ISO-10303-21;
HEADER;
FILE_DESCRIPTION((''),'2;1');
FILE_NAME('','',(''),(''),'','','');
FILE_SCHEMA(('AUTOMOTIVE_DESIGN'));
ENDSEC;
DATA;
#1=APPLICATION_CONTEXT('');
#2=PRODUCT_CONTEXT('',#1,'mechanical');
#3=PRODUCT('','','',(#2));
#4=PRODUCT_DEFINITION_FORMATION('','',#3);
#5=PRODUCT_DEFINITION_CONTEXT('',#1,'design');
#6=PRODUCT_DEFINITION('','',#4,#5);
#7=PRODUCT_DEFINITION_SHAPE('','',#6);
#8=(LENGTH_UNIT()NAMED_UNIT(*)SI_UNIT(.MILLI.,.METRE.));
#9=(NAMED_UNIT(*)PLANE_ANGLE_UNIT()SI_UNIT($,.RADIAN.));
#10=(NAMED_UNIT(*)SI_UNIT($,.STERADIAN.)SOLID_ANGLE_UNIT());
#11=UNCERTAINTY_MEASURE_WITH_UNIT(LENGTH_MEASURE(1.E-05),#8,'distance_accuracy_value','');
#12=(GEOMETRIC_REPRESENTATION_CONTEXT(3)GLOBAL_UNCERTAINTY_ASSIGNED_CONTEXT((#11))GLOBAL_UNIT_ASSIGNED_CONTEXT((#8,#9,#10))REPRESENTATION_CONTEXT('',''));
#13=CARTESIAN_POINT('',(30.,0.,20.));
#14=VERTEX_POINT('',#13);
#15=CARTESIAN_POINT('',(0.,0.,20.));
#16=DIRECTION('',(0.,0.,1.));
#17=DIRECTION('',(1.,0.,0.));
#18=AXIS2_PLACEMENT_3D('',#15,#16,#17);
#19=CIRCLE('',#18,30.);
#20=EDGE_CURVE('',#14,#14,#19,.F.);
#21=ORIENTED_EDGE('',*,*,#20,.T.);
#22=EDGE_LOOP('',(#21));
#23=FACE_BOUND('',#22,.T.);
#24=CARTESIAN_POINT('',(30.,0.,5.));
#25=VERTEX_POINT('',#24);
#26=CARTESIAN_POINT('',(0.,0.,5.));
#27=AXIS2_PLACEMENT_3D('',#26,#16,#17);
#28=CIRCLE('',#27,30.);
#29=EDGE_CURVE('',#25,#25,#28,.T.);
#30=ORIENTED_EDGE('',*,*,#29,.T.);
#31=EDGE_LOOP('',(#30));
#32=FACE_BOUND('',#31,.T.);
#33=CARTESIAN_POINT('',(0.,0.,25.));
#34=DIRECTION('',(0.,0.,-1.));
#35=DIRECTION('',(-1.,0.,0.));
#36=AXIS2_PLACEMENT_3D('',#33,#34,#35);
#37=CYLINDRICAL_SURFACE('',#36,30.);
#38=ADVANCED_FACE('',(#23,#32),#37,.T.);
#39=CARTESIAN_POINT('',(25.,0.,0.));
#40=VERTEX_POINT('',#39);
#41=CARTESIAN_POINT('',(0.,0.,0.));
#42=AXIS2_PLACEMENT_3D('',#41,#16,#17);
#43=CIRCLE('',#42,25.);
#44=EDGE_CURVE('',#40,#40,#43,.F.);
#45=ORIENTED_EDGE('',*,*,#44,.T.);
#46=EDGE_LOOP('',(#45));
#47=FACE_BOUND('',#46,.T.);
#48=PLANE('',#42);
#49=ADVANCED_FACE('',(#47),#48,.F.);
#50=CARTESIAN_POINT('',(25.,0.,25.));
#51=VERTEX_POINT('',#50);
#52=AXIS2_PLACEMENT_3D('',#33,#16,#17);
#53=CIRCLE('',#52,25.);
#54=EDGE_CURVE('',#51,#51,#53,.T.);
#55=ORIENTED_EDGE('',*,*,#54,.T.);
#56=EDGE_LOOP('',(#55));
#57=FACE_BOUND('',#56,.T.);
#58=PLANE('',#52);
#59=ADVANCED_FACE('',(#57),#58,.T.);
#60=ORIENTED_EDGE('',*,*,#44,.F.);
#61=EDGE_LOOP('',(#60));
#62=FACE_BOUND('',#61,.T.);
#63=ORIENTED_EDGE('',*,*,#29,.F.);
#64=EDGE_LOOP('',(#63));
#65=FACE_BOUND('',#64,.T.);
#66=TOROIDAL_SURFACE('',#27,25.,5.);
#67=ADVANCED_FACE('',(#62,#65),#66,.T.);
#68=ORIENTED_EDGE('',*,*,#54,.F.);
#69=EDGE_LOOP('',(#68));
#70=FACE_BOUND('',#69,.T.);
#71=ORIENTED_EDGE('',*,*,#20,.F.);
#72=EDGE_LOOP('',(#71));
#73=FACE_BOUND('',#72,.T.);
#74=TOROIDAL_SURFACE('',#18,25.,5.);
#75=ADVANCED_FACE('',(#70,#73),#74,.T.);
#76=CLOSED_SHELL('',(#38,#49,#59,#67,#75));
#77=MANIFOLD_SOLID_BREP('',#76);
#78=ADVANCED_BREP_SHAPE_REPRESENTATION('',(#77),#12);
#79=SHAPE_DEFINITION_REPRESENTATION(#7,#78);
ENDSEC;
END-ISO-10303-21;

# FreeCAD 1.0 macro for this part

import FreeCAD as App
import Part
import Sketcher
from FreeCAD import Vector


def edges_at(feature, points):
    """Names of the edges that pass closest to the given points."""
    edges = feature.Shape.Edges
    near = lambda p: min(range(len(edges)), key=lambda i: edges[i].distToShape(Part.Vertex(*p))[0])
    return sorted({f"Edge{near(p) + 1}" for p in points})

doc = App.newDocument("Part")
body = doc.addObject("PartDesign::Body", "Body")

# Sketch on XY plane
sketch1 = body.newObject("Sketcher::SketchObject", "Sketch")
sketch1.AttachmentSupport = (doc.getObject("XY_Plane"), [""])
sketch1.MapMode = "FlatFace"
sketch1.addGeometry(Part.Circle(Vector(0, 0, 0), Vector(0, 0, 1), 30), False)
sketch1.addConstraint(Sketcher.Constraint("Coincident", 0, 3, -1, 1))
sketch1.addConstraint(Sketcher.Constraint("Diameter", 0, 60.0))
pad1 = body.newObject("PartDesign::Pad", "Pad")
pad1.Profile = sketch1
pad1.Length = 25
doc.recompute()

fillet = body.newObject("PartDesign::Fillet", "Fillet")
fillet.Base = (pad1, edges_at(pad1, [(-30, 0, 0), (-30, 0, 25)]))
fillet.Radius = 5

doc.recompute()
